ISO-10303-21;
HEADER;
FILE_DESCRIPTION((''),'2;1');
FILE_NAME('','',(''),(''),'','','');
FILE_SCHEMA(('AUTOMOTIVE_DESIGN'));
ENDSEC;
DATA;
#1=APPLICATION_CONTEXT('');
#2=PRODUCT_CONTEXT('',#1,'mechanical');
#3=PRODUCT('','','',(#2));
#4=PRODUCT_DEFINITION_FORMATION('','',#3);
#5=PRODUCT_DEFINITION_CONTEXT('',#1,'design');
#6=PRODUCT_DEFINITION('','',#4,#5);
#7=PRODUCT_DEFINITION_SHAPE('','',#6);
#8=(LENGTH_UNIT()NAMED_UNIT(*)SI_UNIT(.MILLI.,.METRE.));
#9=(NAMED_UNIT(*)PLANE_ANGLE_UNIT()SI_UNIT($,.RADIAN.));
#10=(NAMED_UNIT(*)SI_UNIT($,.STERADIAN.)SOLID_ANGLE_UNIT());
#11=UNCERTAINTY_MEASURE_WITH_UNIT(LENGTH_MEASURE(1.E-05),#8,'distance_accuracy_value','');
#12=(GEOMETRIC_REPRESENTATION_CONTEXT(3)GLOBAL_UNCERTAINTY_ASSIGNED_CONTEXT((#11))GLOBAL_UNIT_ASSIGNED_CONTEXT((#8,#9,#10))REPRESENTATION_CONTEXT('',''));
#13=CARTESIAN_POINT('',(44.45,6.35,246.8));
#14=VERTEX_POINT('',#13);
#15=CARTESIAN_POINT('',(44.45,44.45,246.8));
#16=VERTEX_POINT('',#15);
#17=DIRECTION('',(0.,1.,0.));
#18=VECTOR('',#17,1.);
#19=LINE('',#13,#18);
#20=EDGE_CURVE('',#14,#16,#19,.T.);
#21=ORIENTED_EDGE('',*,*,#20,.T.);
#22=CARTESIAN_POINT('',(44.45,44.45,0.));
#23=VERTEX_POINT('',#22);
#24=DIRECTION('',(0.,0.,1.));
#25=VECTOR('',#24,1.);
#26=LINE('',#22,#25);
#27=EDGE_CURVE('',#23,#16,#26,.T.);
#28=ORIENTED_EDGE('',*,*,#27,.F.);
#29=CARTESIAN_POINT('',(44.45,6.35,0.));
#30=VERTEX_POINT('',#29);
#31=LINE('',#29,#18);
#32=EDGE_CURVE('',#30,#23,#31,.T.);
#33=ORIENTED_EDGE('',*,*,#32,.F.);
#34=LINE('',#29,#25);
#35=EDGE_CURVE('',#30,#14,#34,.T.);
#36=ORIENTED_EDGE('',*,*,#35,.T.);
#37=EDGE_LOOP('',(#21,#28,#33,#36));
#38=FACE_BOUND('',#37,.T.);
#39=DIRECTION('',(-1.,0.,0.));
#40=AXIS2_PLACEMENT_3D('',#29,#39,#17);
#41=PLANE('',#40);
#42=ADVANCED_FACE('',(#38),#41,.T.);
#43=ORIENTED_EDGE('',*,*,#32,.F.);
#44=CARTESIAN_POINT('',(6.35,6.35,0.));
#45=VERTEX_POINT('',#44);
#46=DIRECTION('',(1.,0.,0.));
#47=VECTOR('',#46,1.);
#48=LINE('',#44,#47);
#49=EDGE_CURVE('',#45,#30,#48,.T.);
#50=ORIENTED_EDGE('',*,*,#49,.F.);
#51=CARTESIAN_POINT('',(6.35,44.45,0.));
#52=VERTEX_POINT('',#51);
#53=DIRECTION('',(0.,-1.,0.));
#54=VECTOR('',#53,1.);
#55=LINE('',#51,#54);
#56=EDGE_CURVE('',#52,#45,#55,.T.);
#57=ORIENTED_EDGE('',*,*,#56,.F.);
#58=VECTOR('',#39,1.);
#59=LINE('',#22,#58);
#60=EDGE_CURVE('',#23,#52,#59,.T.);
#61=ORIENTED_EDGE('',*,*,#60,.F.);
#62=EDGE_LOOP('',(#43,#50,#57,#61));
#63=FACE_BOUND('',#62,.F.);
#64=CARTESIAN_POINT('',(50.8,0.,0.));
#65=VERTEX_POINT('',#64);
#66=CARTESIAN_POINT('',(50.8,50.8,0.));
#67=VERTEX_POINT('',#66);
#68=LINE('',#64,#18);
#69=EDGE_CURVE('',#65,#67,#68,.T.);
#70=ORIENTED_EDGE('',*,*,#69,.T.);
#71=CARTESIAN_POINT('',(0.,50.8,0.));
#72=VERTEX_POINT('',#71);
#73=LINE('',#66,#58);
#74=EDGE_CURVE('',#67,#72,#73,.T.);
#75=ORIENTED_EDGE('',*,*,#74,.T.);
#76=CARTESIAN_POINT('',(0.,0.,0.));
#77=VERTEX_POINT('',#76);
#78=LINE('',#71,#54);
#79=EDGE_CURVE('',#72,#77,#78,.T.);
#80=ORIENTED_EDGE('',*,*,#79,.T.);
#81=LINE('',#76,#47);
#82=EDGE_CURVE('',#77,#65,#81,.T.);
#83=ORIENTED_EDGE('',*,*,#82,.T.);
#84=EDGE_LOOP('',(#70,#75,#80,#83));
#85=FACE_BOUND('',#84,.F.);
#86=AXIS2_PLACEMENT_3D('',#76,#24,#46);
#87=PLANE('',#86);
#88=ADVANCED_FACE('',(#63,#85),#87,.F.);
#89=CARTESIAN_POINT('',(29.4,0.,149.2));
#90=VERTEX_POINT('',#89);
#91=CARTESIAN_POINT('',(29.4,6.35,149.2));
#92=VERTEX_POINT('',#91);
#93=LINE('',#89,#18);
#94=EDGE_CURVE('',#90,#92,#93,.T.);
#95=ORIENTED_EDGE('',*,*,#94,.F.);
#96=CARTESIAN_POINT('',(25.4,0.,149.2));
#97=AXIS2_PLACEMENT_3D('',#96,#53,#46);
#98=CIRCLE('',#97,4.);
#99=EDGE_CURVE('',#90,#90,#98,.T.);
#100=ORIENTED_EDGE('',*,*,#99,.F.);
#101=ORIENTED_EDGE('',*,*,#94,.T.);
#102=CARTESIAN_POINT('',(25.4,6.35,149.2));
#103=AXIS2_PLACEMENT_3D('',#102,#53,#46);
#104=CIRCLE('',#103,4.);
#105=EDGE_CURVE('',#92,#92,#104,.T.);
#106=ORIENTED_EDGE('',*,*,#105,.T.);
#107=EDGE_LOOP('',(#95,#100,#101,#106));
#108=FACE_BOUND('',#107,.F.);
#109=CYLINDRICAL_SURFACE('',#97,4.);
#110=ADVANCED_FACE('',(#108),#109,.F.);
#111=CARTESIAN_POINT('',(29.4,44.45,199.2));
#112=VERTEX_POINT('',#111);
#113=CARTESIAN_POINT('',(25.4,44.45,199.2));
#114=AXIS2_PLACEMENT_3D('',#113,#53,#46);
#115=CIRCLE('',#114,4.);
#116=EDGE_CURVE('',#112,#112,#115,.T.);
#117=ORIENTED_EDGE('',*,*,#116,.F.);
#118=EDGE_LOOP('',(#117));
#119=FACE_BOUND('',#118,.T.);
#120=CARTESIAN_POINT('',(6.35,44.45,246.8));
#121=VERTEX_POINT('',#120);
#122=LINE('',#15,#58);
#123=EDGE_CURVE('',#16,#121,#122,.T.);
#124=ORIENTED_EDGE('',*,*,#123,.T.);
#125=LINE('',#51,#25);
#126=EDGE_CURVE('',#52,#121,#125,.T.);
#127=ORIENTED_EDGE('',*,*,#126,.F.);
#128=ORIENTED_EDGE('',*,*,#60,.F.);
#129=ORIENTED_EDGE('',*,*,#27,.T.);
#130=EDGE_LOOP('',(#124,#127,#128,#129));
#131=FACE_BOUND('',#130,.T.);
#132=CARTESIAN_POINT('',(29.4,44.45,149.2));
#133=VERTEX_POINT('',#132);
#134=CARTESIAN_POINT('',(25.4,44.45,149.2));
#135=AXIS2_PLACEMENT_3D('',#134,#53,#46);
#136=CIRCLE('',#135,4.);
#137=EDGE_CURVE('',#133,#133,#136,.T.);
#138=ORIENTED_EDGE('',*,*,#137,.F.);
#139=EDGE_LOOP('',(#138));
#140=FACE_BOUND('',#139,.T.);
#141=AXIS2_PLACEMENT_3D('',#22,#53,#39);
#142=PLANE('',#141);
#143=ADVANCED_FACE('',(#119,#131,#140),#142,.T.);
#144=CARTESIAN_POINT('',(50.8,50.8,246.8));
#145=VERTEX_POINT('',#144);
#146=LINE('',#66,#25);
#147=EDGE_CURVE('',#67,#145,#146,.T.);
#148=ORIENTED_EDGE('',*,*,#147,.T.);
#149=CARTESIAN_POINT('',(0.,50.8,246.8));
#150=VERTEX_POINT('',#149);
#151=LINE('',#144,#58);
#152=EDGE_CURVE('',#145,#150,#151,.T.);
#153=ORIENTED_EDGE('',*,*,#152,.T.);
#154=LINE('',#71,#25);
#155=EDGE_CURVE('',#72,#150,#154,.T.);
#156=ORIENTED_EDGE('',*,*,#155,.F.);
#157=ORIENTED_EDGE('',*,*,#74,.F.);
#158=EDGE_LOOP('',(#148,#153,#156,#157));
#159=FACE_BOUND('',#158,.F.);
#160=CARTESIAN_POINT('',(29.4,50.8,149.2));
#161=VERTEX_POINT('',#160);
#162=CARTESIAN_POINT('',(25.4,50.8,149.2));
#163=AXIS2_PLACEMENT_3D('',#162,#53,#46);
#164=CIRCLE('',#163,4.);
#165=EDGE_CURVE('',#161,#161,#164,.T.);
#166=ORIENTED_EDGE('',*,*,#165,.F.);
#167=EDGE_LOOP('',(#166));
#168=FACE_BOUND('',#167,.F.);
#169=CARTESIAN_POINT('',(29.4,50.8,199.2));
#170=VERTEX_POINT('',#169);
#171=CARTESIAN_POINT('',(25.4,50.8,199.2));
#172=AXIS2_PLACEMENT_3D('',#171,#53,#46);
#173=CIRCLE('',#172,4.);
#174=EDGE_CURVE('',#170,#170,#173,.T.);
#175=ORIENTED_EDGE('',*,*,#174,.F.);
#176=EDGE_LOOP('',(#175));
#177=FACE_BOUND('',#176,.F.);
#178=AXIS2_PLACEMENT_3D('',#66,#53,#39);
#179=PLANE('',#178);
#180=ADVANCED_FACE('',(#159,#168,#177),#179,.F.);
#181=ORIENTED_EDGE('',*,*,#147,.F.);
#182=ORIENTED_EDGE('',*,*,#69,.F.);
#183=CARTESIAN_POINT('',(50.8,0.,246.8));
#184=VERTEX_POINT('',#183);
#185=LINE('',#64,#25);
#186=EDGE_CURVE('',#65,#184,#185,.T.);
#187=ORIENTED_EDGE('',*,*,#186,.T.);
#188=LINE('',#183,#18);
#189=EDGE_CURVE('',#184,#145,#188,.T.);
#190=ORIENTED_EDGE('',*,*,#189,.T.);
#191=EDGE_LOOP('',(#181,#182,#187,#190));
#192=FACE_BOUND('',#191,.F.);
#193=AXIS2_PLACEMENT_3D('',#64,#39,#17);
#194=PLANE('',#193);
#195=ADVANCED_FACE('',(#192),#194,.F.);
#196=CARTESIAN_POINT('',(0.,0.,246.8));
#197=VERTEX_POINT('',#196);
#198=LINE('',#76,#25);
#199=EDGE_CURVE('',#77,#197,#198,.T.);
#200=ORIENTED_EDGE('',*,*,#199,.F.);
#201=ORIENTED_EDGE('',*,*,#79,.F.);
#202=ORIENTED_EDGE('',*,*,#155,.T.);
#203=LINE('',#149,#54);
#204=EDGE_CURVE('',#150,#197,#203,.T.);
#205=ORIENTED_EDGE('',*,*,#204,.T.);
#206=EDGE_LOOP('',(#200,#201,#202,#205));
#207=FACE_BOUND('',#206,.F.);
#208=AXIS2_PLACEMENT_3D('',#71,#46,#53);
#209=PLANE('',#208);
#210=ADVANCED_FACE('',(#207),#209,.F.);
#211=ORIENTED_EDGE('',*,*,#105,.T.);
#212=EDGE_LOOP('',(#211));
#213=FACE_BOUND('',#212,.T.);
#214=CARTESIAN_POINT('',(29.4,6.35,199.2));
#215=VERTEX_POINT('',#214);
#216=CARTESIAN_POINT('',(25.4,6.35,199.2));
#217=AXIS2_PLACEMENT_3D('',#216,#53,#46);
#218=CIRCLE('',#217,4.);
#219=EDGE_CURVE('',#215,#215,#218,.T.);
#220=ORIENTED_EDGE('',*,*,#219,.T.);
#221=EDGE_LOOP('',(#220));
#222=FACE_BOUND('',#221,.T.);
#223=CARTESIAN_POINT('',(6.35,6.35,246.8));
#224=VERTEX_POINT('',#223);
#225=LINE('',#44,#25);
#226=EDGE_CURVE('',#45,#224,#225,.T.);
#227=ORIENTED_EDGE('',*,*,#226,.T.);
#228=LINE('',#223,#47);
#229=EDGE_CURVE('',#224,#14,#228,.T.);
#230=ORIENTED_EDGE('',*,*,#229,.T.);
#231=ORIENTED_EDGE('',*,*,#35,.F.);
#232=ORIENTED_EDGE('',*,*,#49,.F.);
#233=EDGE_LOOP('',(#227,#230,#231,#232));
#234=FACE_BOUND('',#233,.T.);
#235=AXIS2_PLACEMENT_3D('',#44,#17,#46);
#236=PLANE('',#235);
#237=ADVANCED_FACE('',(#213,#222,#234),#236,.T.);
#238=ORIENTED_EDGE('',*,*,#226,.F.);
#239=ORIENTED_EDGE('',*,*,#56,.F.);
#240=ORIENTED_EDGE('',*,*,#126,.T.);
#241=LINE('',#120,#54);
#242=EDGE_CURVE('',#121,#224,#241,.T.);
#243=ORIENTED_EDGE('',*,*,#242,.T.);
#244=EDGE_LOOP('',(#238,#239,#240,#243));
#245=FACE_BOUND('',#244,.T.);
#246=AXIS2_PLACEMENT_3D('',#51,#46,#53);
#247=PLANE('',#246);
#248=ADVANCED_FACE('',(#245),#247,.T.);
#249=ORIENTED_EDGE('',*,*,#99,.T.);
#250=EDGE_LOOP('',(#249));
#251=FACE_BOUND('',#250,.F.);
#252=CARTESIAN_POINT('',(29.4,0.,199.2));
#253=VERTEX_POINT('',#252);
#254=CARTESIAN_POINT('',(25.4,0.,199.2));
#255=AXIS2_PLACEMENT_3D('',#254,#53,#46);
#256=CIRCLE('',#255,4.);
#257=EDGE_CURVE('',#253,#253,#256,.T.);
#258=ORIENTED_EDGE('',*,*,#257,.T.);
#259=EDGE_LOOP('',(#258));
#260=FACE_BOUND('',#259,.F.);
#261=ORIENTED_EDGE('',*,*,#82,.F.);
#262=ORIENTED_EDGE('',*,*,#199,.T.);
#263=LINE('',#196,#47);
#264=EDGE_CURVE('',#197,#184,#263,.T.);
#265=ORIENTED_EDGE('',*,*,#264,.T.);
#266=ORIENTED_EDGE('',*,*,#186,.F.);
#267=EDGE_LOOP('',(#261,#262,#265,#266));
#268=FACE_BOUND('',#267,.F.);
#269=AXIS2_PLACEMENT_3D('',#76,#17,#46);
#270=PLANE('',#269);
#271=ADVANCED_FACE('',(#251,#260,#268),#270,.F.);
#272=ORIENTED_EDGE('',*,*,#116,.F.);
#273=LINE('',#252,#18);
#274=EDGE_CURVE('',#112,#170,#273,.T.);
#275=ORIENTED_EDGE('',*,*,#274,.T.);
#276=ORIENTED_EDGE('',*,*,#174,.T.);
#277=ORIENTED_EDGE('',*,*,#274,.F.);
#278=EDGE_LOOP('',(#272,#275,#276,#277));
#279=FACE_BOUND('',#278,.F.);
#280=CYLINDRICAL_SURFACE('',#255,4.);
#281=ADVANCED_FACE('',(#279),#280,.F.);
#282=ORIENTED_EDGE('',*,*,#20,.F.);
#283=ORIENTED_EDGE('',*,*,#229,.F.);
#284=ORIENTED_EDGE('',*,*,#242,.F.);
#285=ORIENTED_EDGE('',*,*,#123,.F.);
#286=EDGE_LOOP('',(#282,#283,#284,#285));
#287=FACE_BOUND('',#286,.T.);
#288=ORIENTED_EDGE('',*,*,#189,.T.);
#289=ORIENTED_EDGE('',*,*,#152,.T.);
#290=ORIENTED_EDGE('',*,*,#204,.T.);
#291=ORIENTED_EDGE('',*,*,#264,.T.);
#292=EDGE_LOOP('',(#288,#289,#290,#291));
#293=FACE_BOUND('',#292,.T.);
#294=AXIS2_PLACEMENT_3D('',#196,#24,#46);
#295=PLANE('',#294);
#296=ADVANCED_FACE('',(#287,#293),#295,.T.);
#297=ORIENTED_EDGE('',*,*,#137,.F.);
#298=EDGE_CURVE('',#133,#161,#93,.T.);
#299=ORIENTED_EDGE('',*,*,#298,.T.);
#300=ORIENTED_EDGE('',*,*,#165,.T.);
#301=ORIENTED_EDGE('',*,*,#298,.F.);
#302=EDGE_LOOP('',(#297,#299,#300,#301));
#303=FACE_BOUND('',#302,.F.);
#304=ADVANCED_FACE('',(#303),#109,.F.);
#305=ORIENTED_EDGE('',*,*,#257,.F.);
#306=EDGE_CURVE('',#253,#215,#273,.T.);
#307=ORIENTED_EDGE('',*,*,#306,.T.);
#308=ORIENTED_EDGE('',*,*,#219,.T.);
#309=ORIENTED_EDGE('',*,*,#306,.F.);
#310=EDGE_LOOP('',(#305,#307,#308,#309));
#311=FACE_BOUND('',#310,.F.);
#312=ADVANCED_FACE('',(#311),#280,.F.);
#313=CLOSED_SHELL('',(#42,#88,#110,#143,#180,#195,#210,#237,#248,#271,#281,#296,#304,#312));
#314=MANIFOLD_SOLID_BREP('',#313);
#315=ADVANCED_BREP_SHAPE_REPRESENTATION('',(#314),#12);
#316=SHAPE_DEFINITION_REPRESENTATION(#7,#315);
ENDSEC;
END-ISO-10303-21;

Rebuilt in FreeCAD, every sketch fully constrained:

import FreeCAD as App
import Part
import Sketcher
from FreeCAD import Vector
Q = App.Units.Quantity

doc = App.newDocument("Part")
body = doc.addObject("PartDesign::Body", "Body")

sketch1 = body.newObject("Sketcher::SketchObject", "Sketch")
sketch1.AttachmentSupport = (doc.getObject("XY_Plane"), [""])
sketch1.MapMode = "FlatFace"
sketch1.addGeometry([
    Part.LineSegment(Vector(0, 51, 0), Vector(0, 0, 0)),
    Part.LineSegment(Vector(0, 0, 0), Vector(51, 0, 0)),
    Part.LineSegment(Vector(51, 0, 0), Vector(51, 51, 0)),
    Part.LineSegment(Vector(51, 51, 0), Vector(0, 51, 0)),
    Part.LineSegment(Vector(44, 6, 0), Vector(6, 6, 0)),
    Part.LineSegment(Vector(6, 6, 0), Vector(6, 44, 0)),
    Part.LineSegment(Vector(6, 44, 0), Vector(44, 44, 0)),
    Part.LineSegment(Vector(44, 44, 0), Vector(44, 6, 0)),
], False)
sketch1.addConstraint([
    Sketcher.Constraint("Coincident", 0, 2, 1, 1),
    Sketcher.Constraint("Coincident", 1, 2, 2, 1),
    Sketcher.Constraint("Coincident", 2, 2, 3, 1),
    Sketcher.Constraint("Coincident", 3, 2, 0, 1),
    Sketcher.Constraint("Coincident", 4, 2, 5, 1),
    Sketcher.Constraint("Coincident", 5, 2, 6, 1),
    Sketcher.Constraint("Coincident", 6, 2, 7, 1),
    Sketcher.Constraint("Coincident", 7, 2, 4, 1),
    Sketcher.Constraint("Vertical", 0),
    Sketcher.Constraint("Horizontal", 1),
    Sketcher.Constraint("Vertical", 2),
    Sketcher.Constraint("Horizontal", 3),
    Sketcher.Constraint("Horizontal", 4),
    Sketcher.Constraint("Vertical", 5),
    Sketcher.Constraint("Horizontal", 6),
    Sketcher.Constraint("Vertical", 7),
    Sketcher.Constraint("Coincident", 0, 2, -1, 1),
    Sketcher.Constraint("Equal", 3, 0),
    Sketcher.Constraint("Equal", 6, 5),
    Sketcher.Constraint("DistanceX", 1, 1, 1, 2, Q("50.8 mm")),
    Sketcher.Constraint("DistanceX", -1, 1, 4, 2, Q("6.35 mm")),
    Sketcher.Constraint("DistanceY", -1, 1, 4, 2, Q("6.35 mm")),
    Sketcher.Constraint("DistanceY", 5, 2, 3, 2, Q("6.35 mm")),
])
pad1 = body.newObject("PartDesign::Pad", "Pad")
pad1.Profile = sketch1
pad1.Length = 246.8

sketch2 = body.newObject("Sketcher::SketchObject", "Sketch001")
sketch2.AttachmentSupport = (doc.getObject("XZ_Plane"), [""])
sketch2.MapMode = "FlatFace"
sketch2.addGeometry([
    Part.Circle(Vector(25.4, 149.2, 0), Vector(0, 0, 1), 4),
    Part.Circle(Vector(25.4, 199.2, 0), Vector(0, 0, 1), 4),
], False)
sketch2.addConstraint([
    Sketcher.Constraint("Equal", 0, 1),
    Sketcher.Constraint("Vertical", 0, 3, 1, 3),
    Sketcher.Constraint("Diameter", 0, Q("8 mm")),
    Sketcher.Constraint("DistanceY", 0, 3, 1, 3, Q("50 mm")),
    Sketcher.Constraint("DistanceY", -1, 1, 0, 3, Q("149.2 mm")),
    Sketcher.Constraint("DistanceX", -1, 1, 0, 3, Q("25.4 mm")),
])
pocket1 = body.newObject("PartDesign::Pocket", "Pocket")
pocket1.Profile = sketch2
pocket1.Type = "ThroughAll"

doc.recompute()
